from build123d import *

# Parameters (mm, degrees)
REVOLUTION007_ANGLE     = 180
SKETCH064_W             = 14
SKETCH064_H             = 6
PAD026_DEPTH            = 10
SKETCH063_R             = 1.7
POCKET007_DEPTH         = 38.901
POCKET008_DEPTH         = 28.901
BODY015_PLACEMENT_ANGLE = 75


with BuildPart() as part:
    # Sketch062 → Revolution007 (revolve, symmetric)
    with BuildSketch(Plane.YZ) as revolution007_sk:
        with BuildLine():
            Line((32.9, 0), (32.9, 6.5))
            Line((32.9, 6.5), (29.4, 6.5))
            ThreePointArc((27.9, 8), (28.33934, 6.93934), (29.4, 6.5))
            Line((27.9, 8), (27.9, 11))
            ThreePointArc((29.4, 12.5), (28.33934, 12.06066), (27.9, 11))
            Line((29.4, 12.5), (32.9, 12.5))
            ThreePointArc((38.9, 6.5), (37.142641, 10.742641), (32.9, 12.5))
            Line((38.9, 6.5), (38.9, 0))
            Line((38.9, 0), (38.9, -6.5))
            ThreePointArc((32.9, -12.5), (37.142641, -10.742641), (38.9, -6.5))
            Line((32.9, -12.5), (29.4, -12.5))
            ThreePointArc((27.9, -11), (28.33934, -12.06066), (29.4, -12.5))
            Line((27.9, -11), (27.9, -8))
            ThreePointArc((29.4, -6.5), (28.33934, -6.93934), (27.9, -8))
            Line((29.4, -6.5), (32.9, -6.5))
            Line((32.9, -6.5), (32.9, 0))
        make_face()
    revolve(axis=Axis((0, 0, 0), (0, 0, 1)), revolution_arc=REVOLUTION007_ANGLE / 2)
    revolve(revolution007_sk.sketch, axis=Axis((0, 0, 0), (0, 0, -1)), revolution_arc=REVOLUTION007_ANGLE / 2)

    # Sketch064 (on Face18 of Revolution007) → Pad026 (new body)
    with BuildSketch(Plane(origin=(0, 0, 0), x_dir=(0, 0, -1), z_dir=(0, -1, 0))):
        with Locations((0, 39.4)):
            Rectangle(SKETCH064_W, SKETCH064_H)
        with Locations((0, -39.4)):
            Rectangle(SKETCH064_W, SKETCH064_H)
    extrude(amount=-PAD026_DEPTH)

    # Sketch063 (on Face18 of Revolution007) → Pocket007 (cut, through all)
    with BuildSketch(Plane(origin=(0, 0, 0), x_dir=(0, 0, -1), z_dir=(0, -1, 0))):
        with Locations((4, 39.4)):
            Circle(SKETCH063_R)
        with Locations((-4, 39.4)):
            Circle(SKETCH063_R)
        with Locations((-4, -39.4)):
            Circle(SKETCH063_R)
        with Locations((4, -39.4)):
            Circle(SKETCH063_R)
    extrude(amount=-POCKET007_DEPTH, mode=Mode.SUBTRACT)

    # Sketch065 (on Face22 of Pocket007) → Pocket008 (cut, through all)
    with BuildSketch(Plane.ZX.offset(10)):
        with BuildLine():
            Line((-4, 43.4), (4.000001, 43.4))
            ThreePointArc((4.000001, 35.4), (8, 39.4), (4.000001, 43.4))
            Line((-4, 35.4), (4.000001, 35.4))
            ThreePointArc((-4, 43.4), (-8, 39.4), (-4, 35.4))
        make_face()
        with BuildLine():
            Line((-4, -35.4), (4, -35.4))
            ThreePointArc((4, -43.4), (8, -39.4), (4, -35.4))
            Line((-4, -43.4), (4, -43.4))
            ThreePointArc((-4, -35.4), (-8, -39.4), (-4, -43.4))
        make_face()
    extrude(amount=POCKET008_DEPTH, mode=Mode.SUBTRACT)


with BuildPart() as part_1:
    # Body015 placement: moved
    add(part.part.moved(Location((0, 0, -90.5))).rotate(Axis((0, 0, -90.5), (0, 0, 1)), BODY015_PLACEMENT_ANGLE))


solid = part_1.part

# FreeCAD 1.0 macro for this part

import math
import FreeCAD as App
import Part
import Sketcher
from FreeCAD import Vector


def add_polygon(sketch, points):
    """Adds a closed chain of lines whose ends are joined by coincident constraints."""
    first, n = sketch.GeometryCount, len(points)
    for a, b in zip(points, points[1:] + points[:1]):
        sketch.addGeometry(Part.LineSegment(App.Vector(*a, 0), App.Vector(*b, 0)), False)
    for i in range(n):
        sketch.addConstraint(Sketcher.Constraint("Coincident", first + i, 2, first + (i + 1) % n, 1))

doc = App.newDocument("Part")
params = doc.addObject("Spreadsheet::Sheet", "Params")
for row, (alias, value) in enumerate([
    ("sketch1_radius", "5.999999 mm"),
    ("sketch1_radius2", "1.500001 mm"),
    ("sketch1_height", "13 mm"),
    ("sketch1_width", "3.5 mm"),
    ("revolution_angle", "90 deg"),
    ("sketch2_radius", "5.999999 mm"),
    ("sketch2_radius2", "1.500001 mm"),
    ("sketch2_height", "13 mm"),
    ("sketch2_width", "3.5 mm"),
    ("revolution2_angle", "90 deg"),
    ("sketch3_width", "6 mm"),
    ("sketch3_height", "14 mm"),
    ("pad1_length", "10 mm"),
    ("sketch4_diameter", "3.4 mm"),
    ("sketch5_radius", "4 mm"),
    ("sketch5_height", "8.000001 mm"),
], start=1):
    params.set(f"A{row}", alias)
    params.set(f"B{row}", "=" + value)
    params.setAlias(f"B{row}", alias)

body = doc.addObject("PartDesign::Body", "Body")

sketch1 = body.newObject("Sketcher::SketchObject", "Sketch")
sketch1.AttachmentSupport = (doc.getObject("YZ_Plane"), [""])
sketch1.MapMode = "FlatFace"
sketch1.addGeometry([
    Part.LineSegment(Vector(29.4, 6.5, 0), Vector(32.9, 6.5, 0)),
    Part.LineSegment(Vector(32.9, 6.5, 0), Vector(32.9, -6.5, 0)),
    Part.LineSegment(Vector(32.9, -6.5, 0), Vector(29.4, -6.5, 0)),
    Part.ArcOfCircle(Part.Circle(Vector(29.4, -8, 0), Vector(0, 0, 1), 1.5), math.radians(90), math.radians(180)),
    Part.LineSegment(Vector(27.9, -8, 0), Vector(27.9, -11, 0)),
    Part.ArcOfCircle(Part.Circle(Vector(29.4, -11, 0), Vector(0, 0, 1), 1.5), math.radians(-180), math.radians(-90)),
    Part.LineSegment(Vector(29.4, -12.5, 0), Vector(32.9, -12.5, 0)),
    Part.ArcOfCircle(Part.Circle(Vector(32.9, -6.5, 0), Vector(0, 0, 1), 6), math.radians(-90), math.radians(0)),
    Part.LineSegment(Vector(38.9, -6.5, 0), Vector(38.9, 6.5, 0)),
    Part.ArcOfCircle(Part.Circle(Vector(32.9, 6.5, 0), Vector(0, 0, 1), 6), math.radians(0), math.radians(90)),
    Part.LineSegment(Vector(32.9, 12.5, 0), Vector(29.4, 12.5, 0)),
    Part.ArcOfCircle(Part.Circle(Vector(29.4, 11, 0), Vector(0, 0, 1), 1.5), math.radians(90), math.radians(180)),
    Part.LineSegment(Vector(27.9, 11, 0), Vector(27.9, 8, 0)),
    Part.ArcOfCircle(Part.Circle(Vector(29.4, 8, 0), Vector(0, 0, 1), 1.5), math.radians(-180), math.radians(-90)),
], False)
sketch1.addConstraint([
    Sketcher.Constraint("Coincident", 0, 2, 1, 1),
    Sketcher.Constraint("Coincident", 1, 2, 2, 1),
    Sketcher.Constraint("Tangent", 2, 2, 3, 1),
    Sketcher.Constraint("Tangent", 3, 2, 4, 1),
    Sketcher.Constraint("Tangent", 4, 2, 5, 1),
    Sketcher.Constraint("Tangent", 5, 2, 6, 1),
    Sketcher.Constraint("Tangent", 6, 2, 7, 1),
    Sketcher.Constraint("Tangent", 7, 2, 8, 1),
    Sketcher.Constraint("Tangent", 8, 2, 9, 1),
    Sketcher.Constraint("Tangent", 9, 2, 10, 1),
    Sketcher.Constraint("Tangent", 10, 2, 11, 1),
    Sketcher.Constraint("Tangent", 11, 2, 12, 1),
    Sketcher.Constraint("Tangent", 12, 2, 13, 1),
    Sketcher.Constraint("Tangent", 13, 2, 0, 1),
    Sketcher.Constraint("Horizontal", 0),
    Sketcher.Constraint("Vertical", 1),
    Sketcher.Constraint("Horizontal", 2),
    Sketcher.Constraint("Vertical", 4),
    Sketcher.Constraint("Horizontal", 6),
    Sketcher.Constraint("Vertical", 8),
    Sketcher.Constraint("Horizontal", 10),
    Sketcher.Constraint("Vertical", 12),
    Sketcher.Constraint("Coincident", 0, 2, 9, 3),
    Sketcher.Constraint("Coincident", 1, 2, 7, 3),
    Sketcher.Constraint("Equal", 3, 5),
    Sketcher.Constraint("Equal", 5, 11),
    Sketcher.Constraint("Equal", 11, 13),
    Sketcher.Constraint("Symmetric", 5, 3, 11, 3, -1),
    Sketcher.Constraint("Radius", 7, 5.999999),
    Sketcher.Constraint("Radius", 3, 1.500001),
    Sketcher.Constraint("DistanceY", 1, 2, 1, 1, 13.0),
    Sketcher.Constraint("DistanceX", 0, 1, 0, 2, 3.5),
    Sketcher.Constraint("DistanceX", -1, 1, 3, 3, 29.400001),
])
sketch1.setExpression("Constraints[28]", "Params.sketch1_radius")
sketch1.setExpression("Constraints[29]", "Params.sketch1_radius2")
sketch1.setExpression("Constraints[30]", "Params.sketch1_height")
sketch1.setExpression("Constraints[31]", "Params.sketch1_width")
revolution = body.newObject("PartDesign::Revolution", "Revolution")
revolution.Profile = sketch1
revolution.ReferenceAxis = (sketch1, ["V_Axis"])
revolution.setExpression("Angle", "Params.revolution_angle")

sketch2 = body.newObject("Sketcher::SketchObject", "Sketch001")
sketch2.AttachmentSupport = (doc.getObject("YZ_Plane"), [""])
sketch2.MapMode = "FlatFace"
sketch2.addGeometry([
    Part.LineSegment(Vector(29.4, 6.5, 0), Vector(32.9, 6.5, 0)),
    Part.LineSegment(Vector(32.9, 6.5, 0), Vector(32.9, -6.5, 0)),
    Part.LineSegment(Vector(32.9, -6.5, 0), Vector(29.4, -6.5, 0)),
    Part.ArcOfCircle(Part.Circle(Vector(29.4, -8, 0), Vector(0, 0, 1), 1.5), math.radians(90), math.radians(180)),
    Part.LineSegment(Vector(27.9, -8, 0), Vector(27.9, -11, 0)),
    Part.ArcOfCircle(Part.Circle(Vector(29.4, -11, 0), Vector(0, 0, 1), 1.5), math.radians(-180), math.radians(-90)),
    Part.LineSegment(Vector(29.4, -12.5, 0), Vector(32.9, -12.5, 0)),
    Part.ArcOfCircle(Part.Circle(Vector(32.9, -6.5, 0), Vector(0, 0, 1), 6), math.radians(-90), math.radians(0)),
    Part.LineSegment(Vector(38.9, -6.5, 0), Vector(38.9, 6.5, 0)),
    Part.ArcOfCircle(Part.Circle(Vector(32.9, 6.5, 0), Vector(0, 0, 1), 6), math.radians(0), math.radians(90)),
    Part.LineSegment(Vector(32.9, 12.5, 0), Vector(29.4, 12.5, 0)),
    Part.ArcOfCircle(Part.Circle(Vector(29.4, 11, 0), Vector(0, 0, 1), 1.5), math.radians(90), math.radians(180)),
    Part.LineSegment(Vector(27.9, 11, 0), Vector(27.9, 8, 0)),
    Part.ArcOfCircle(Part.Circle(Vector(29.4, 8, 0), Vector(0, 0, 1), 1.5), math.radians(-180), math.radians(-90)),
], False)
sketch2.addConstraint([
    Sketcher.Constraint("Coincident", 0, 2, 1, 1),
    Sketcher.Constraint("Coincident", 1, 2, 2, 1),
    Sketcher.Constraint("Tangent", 2, 2, 3, 1),
    Sketcher.Constraint("Tangent", 3, 2, 4, 1),
    Sketcher.Constraint("Tangent", 4, 2, 5, 1),
    Sketcher.Constraint("Tangent", 5, 2, 6, 1),
    Sketcher.Constraint("Tangent", 6, 2, 7, 1),
    Sketcher.Constraint("Tangent", 7, 2, 8, 1),
    Sketcher.Constraint("Tangent", 8, 2, 9, 1),
    Sketcher.Constraint("Tangent", 9, 2, 10, 1),
    Sketcher.Constraint("Tangent", 10, 2, 11, 1),
    Sketcher.Constraint("Tangent", 11, 2, 12, 1),
    Sketcher.Constraint("Tangent", 12, 2, 13, 1),
    Sketcher.Constraint("Tangent", 13, 2, 0, 1),
    Sketcher.Constraint("Horizontal", 0),
    Sketcher.Constraint("Vertical", 1),
    Sketcher.Constraint("Horizontal", 2),
    Sketcher.Constraint("Vertical", 4),
    Sketcher.Constraint("Horizontal", 6),
    Sketcher.Constraint("Vertical", 8),
    Sketcher.Constraint("Horizontal", 10),
    Sketcher.Constraint("Vertical", 12),
    Sketcher.Constraint("Coincident", 0, 2, 9, 3),
    Sketcher.Constraint("Coincident", 1, 2, 7, 3),
    Sketcher.Constraint("Equal", 3, 5),
    Sketcher.Constraint("Equal", 5, 11),
    Sketcher.Constraint("Equal", 11, 13),
    Sketcher.Constraint("Symmetric", 5, 3, 11, 3, -1),
    Sketcher.Constraint("Radius", 7, 5.999999),
    Sketcher.Constraint("Radius", 3, 1.500001),
    Sketcher.Constraint("DistanceY", 1, 2, 1, 1, 13.0),
    Sketcher.Constraint("DistanceX", 0, 1, 0, 2, 3.5),
    Sketcher.Constraint("DistanceX", -1, 1, 3, 3, 29.400001),
])
sketch2.setExpression("Constraints[28]", "Params.sketch2_radius")
sketch2.setExpression("Constraints[29]", "Params.sketch2_radius2")
sketch2.setExpression("Constraints[30]", "Params.sketch2_height")
sketch2.setExpression("Constraints[31]", "Params.sketch2_width")
revolution2 = body.newObject("PartDesign::Revolution", "Revolution001")
revolution2.Profile = sketch2
revolution2.ReferenceAxis = (sketch2, ["V_Axis"])
revolution2.setExpression("Angle", "Params.revolution2_angle")
revolution2.Reversed = True

sketch3 = body.newObject("Sketcher::SketchObject", "Sketch002")
sketch3.AttachmentSupport = (doc.getObject("XZ_Plane"), [""])
sketch3.MapMode = "FlatFace"
add_polygon(sketch3, [(42, 7), (36, 7), (36, -7), (42, -7)])
add_polygon(sketch3, [(-36, 7), (-42, 7), (-42, -7), (-36, -7)])
sketch3.addConstraint([
    Sketcher.Constraint("Horizontal", 0),
    Sketcher.Constraint("Vertical", 1),
    Sketcher.Constraint("Horizontal", 2),
    Sketcher.Constraint("Vertical", 3),
    Sketcher.Constraint("Horizontal", 4),
    Sketcher.Constraint("Vertical", 5),
    Sketcher.Constraint("Horizontal", 6),
    Sketcher.Constraint("Vertical", 7),
    Sketcher.Constraint("Symmetric", 2, 2, 4, 2, -1, 1),
    Sketcher.Constraint("Symmetric", 0, 2, 6, 2, -1, 1),
    Sketcher.Constraint("Horizontal", 3, 2, 4, 2),
    Sketcher.Constraint("DistanceX", 0, 2, 0, 1, 6.0),
    Sketcher.Constraint("DistanceY", 1, 2, 1, 1, 14.0),
    Sketcher.Constraint("DistanceX", -1, 1, 0, 2, 36.4),
])
sketch3.setExpression("Constraints[19]", "Params.sketch3_width")
sketch3.setExpression("Constraints[20]", "Params.sketch3_height")
pad1 = body.newObject("PartDesign::Pad", "Pad")
pad1.Profile = sketch3
pad1.setExpression("Length", "Params.pad1_length")
pad1.Reversed = True

sketch4 = body.newObject("Sketcher::SketchObject", "Sketch003")
sketch4.AttachmentSupport = (doc.getObject("XZ_Plane"), [""])
sketch4.MapMode = "FlatFace"
sketch4.addGeometry([
    Part.Circle(Vector(39.4, -4, 0), Vector(0, 0, 1), 1.7),
    Part.Circle(Vector(39.4, 4, 0), Vector(0, 0, 1), 1.7),
    Part.Circle(Vector(-39.4, 4, 0), Vector(0, 0, 1), 1.7),
    Part.Circle(Vector(-39.4, -4, 0), Vector(0, 0, 1), 1.7),
], False)
sketch4.addConstraint([
    Sketcher.Constraint("Equal", 0, 1),
    Sketcher.Constraint("Equal", 1, 2),
    Sketcher.Constraint("Equal", 2, 3),
    Sketcher.Constraint("Symmetric", 0, 3, 2, 3, -1, 1),
    Sketcher.Constraint("Symmetric", 1, 3, 3, 3, -1, 1),
    Sketcher.Constraint("Symmetric", 1, 3, 2, 3, -2),
    Sketcher.Constraint("Diameter", 0, 3.4),
    Sketcher.Constraint("DistanceY", 0, 3, -1, 1, 4.0),
    Sketcher.Constraint("DistanceX", -1, 1, 0, 3, 39.4),
])
sketch4.setExpression("Constraints[6]", "Params.sketch4_diameter")
pocket1 = body.newObject("PartDesign::Pocket", "Pocket")
pocket1.Profile = sketch4
pocket1.Type = "ThroughAll"

sketch5 = body.newObject("Sketcher::SketchObject", "Sketch004")
sketch5.AttachmentSupport = (doc.getObject("XZ_Plane"), [""])
sketch5.MapMode = "FlatFace"
sketch5.AttachmentOffset = App.Placement(Vector(0, 0, -10), App.Rotation())
sketch5.addGeometry([
    Part.LineSegment(Vector(43.4, 4, 0), Vector(43.4, -4, 0)),
    Part.ArcOfCircle(Part.Circle(Vector(39.4, -4, 0), Vector(0, 0, 1), 4), math.radians(180), math.radians(360)),
    Part.LineSegment(Vector(35.4, -4, 0), Vector(35.4, 4, 0)),
    Part.ArcOfCircle(Part.Circle(Vector(39.4, 4, 0), Vector(0, 0, 1), 4), math.radians(0), math.radians(180)),
    Part.LineSegment(Vector(-35.4, 4, 0), Vector(-35.4, -4, 0)),
    Part.ArcOfCircle(Part.Circle(Vector(-39.4, -4, 0), Vector(0, 0, 1), 4), math.radians(180), math.radians(360)),
    Part.LineSegment(Vector(-43.4, -4, 0), Vector(-43.4, 4, 0)),
    Part.ArcOfCircle(Part.Circle(Vector(-39.4, 4, 0), Vector(0, 0, 1), 4), math.radians(0), math.radians(180)),
], False)
sketch5.addConstraint([
    Sketcher.Constraint("Tangent", 0, 2, 1, 2),
    Sketcher.Constraint("Tangent", 1, 1, 2, 1),
    Sketcher.Constraint("Tangent", 2, 2, 3, 2),
    Sketcher.Constraint("Tangent", 3, 1, 0, 1),
    Sketcher.Constraint("Tangent", 4, 2, 5, 2),
    Sketcher.Constraint("Tangent", 5, 1, 6, 1),
    Sketcher.Constraint("Tangent", 6, 2, 7, 2),
    Sketcher.Constraint("Tangent", 7, 1, 4, 1),
    Sketcher.Constraint("Vertical", 0),
    Sketcher.Constraint("Vertical", 2),
    Sketcher.Constraint("Vertical", 4),
    Sketcher.Constraint("Vertical", 6),
    Sketcher.Constraint("Equal", 3, 5),
    Sketcher.Constraint("Symmetric", 3, 3, 5, 3, -1, 1),
    Sketcher.Constraint("Horizontal", 1, 3, 5, 3),
    Sketcher.Constraint("Horizontal", 3, 3, 7, 3),
    Sketcher.Constraint("Radius", 1, 4.0),
    Sketcher.Constraint("DistanceY", 0, 2, 0, 1, 8.000001),
    Sketcher.Constraint("DistanceX", -1, 1, 1, 3, 39.4),
])
sketch5.setExpression("Constraints[16]", "Params.sketch5_radius")
sketch5.setExpression("Constraints[17]", "Params.sketch5_height")
pocket2 = body.newObject("PartDesign::Pocket", "Pocket001")
pocket2.Profile = sketch5
pocket2.Type = "ThroughAll"
body2 = doc.addObject("PartDesign::Body", "Body001")
doc.recompute()

body.Placement = App.Placement(Vector(0, 0, -90.5), App.Rotation(Vector(0, 0, 1), 75))
boolean = body2.newObject("PartDesign::Boolean", "Boolean")
boolean.Type = "Fuse"
boolean.addObjects([body])

doc.recompute()
